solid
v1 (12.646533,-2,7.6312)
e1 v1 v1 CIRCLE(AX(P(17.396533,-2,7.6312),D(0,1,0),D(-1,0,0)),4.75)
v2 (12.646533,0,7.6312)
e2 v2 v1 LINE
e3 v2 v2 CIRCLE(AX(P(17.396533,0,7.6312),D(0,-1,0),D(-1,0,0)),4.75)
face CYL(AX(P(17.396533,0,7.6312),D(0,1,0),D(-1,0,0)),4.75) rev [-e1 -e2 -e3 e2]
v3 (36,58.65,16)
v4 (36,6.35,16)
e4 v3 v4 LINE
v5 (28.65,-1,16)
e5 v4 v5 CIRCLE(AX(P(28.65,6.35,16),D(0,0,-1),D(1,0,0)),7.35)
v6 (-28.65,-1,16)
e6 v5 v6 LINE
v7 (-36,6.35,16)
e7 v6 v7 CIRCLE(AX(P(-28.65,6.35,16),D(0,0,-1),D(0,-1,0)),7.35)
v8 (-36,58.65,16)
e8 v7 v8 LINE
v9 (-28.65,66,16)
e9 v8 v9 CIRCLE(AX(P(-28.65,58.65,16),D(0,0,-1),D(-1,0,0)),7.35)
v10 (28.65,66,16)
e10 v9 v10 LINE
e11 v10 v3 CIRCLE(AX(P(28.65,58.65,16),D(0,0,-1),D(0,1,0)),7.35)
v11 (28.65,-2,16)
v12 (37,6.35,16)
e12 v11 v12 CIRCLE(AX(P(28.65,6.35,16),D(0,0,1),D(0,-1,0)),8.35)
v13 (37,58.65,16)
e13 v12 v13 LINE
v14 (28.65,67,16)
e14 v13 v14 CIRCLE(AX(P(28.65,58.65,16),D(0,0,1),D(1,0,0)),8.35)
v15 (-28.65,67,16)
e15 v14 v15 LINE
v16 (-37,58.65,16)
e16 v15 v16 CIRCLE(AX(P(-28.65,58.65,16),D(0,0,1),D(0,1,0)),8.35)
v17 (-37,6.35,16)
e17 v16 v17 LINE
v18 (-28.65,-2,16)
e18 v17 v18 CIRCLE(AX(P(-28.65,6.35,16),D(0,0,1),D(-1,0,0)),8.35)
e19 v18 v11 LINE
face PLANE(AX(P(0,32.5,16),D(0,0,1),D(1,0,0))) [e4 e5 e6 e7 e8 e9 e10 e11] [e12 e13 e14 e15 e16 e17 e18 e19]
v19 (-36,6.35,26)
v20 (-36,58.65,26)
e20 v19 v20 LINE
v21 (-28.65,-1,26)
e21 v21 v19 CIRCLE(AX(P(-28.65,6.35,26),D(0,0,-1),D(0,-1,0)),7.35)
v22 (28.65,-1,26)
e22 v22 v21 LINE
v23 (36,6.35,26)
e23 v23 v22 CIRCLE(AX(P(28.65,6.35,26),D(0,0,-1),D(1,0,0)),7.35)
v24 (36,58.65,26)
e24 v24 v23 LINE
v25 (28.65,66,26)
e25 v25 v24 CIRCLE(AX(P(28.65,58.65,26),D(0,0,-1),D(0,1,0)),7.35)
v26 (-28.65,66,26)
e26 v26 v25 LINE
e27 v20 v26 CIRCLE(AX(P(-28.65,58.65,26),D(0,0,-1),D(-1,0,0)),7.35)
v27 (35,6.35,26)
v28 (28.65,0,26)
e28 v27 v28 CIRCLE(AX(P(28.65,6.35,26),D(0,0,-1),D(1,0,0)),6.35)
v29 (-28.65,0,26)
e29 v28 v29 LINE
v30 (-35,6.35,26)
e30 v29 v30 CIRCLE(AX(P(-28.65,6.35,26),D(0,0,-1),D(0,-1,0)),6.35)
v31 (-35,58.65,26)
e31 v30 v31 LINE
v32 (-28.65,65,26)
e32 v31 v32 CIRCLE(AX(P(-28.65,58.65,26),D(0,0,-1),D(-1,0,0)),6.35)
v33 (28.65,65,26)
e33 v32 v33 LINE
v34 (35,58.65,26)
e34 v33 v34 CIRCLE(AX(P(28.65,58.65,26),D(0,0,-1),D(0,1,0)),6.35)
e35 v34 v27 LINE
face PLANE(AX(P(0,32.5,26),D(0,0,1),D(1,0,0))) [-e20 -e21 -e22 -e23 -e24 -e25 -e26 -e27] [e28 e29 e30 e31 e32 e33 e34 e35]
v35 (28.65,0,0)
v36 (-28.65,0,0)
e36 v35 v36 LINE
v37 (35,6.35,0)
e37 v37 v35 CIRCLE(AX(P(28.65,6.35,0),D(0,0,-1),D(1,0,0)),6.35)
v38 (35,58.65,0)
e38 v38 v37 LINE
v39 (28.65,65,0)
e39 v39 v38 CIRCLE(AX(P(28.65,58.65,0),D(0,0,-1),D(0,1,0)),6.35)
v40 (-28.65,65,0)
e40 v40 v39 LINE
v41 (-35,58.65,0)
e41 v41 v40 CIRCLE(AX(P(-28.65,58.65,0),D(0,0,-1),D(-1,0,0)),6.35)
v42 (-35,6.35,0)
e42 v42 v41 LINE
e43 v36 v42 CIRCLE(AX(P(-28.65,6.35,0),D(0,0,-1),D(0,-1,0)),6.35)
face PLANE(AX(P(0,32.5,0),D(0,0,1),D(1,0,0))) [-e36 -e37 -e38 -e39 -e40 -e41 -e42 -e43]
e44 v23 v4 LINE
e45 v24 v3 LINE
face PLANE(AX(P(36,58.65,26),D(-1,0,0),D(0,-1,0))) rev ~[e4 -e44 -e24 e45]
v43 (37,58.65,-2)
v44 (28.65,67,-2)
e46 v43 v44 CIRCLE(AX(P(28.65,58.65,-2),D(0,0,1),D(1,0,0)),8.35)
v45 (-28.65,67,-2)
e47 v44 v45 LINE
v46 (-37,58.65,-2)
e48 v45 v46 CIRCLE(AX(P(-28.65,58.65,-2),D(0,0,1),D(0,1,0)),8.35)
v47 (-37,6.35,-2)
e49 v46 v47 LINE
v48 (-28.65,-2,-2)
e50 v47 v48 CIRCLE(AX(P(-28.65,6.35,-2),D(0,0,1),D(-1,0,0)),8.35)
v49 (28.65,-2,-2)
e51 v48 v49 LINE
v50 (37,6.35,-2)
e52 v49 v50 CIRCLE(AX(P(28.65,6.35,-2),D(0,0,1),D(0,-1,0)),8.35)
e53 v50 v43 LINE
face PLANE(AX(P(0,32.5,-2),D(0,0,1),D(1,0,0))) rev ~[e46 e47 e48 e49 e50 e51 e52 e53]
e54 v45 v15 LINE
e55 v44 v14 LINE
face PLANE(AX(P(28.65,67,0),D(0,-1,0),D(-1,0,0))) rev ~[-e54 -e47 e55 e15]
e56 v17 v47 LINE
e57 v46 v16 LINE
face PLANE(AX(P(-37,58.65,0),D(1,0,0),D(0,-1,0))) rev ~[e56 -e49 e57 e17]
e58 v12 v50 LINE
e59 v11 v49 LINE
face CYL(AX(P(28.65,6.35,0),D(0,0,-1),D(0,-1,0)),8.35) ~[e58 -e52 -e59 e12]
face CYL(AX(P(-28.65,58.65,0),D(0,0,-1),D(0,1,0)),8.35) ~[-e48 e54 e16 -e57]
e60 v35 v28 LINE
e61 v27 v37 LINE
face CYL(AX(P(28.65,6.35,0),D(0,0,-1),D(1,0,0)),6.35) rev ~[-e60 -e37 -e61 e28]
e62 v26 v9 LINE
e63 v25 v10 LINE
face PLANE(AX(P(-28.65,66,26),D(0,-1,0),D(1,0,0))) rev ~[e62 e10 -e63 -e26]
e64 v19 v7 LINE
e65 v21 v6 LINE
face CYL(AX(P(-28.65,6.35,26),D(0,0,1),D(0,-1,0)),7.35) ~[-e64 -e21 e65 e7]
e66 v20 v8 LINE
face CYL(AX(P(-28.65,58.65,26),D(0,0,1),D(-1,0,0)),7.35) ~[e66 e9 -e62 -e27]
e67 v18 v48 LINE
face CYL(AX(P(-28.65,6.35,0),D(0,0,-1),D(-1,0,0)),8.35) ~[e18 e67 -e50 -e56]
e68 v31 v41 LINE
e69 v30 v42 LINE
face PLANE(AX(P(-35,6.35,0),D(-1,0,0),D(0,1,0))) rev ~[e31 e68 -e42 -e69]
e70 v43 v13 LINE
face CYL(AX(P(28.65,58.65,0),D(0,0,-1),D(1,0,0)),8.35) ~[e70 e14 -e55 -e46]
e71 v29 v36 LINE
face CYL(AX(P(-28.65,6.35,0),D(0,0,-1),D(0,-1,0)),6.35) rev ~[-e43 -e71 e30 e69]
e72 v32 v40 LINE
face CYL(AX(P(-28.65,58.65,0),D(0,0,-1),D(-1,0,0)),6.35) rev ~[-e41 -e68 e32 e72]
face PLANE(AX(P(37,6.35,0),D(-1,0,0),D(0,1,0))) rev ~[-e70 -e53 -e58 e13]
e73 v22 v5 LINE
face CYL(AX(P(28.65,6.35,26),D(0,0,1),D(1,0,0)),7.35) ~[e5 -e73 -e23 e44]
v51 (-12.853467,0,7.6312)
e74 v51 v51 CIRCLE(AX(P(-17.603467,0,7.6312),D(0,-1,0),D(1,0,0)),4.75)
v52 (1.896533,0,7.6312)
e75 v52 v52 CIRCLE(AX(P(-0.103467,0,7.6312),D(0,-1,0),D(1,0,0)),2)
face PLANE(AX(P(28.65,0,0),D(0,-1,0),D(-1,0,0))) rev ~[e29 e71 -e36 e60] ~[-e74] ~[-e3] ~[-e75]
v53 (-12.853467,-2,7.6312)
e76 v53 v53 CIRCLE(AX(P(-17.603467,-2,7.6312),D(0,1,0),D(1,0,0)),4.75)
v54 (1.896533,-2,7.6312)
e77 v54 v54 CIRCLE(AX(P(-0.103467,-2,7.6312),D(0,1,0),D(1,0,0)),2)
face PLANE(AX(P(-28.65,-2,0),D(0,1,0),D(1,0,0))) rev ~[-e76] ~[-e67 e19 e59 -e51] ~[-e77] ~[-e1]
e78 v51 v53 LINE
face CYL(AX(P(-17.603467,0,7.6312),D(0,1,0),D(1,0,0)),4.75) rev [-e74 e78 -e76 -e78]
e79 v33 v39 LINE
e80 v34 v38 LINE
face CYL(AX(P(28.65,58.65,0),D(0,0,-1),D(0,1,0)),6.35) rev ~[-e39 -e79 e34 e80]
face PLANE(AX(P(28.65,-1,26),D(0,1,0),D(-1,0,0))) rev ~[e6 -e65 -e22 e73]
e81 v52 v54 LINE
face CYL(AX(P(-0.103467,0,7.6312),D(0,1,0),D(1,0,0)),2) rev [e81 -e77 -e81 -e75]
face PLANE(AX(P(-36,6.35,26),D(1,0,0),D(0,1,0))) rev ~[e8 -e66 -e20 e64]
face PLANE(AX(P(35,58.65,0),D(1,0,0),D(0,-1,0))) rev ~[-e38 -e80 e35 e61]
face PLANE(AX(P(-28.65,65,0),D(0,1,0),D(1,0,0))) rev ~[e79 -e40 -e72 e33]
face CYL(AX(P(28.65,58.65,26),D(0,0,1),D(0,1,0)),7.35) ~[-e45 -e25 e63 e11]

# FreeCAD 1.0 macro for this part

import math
import FreeCAD as App
import Part
import Sketcher
from FreeCAD import Vector
Q = App.Units.Quantity

doc = App.newDocument("Part")
body = doc.addObject("PartDesign::Body", "Body")

# Sketch on XY plane
sketch1 = doc.addObject("Sketcher::SketchObject", "Sketch")
body.addObject(sketch1)
sketch1.AttachmentSupport = (doc.XY_Plane, [""])
sketch1.MapMode = "FlatFace"
sketch1.addGeometry([
    Part.LineSegment(Vector(37, 6, 0), Vector(37, 59, 0)),  # 0
    Part.ArcOfCircle(Part.Circle(Vector(29, 59, 0), Vector(0, 0, 1), 8), math.radians(0), math.radians(90)),  # 1
    Part.LineSegment(Vector(29, 67, 0), Vector(-29, 67, 0)),  # 2
    Part.ArcOfCircle(Part.Circle(Vector(-29, 59, 0), Vector(0, 0, 1), 8), math.radians(90), math.radians(180)),  # 3
    Part.LineSegment(Vector(-37, 59, 0), Vector(-37, 6, 0)),  # 4
    Part.ArcOfCircle(Part.Circle(Vector(-29, 6, 0), Vector(0, 0, 1), 8), math.radians(180), math.radians(270)),  # 5
    Part.LineSegment(Vector(-29, -2, 0), Vector(29, -2, 0)),  # 6
    Part.ArcOfCircle(Part.Circle(Vector(29, 6, 0), Vector(0, 0, 1), 8), math.radians(-90), math.radians(0)),  # 7
], False)
sketch1.addConstraint([
    Sketcher.Constraint("Tangent", 0, 2, 1, 1),
    Sketcher.Constraint("Tangent", 1, 2, 2, 1),
    Sketcher.Constraint("Tangent", 2, 2, 3, 1),
    Sketcher.Constraint("Tangent", 3, 2, 4, 1),
    Sketcher.Constraint("Tangent", 4, 2, 5, 1),
    Sketcher.Constraint("Tangent", 5, 2, 6, 1),
    Sketcher.Constraint("Tangent", 6, 2, 7, 1),
    Sketcher.Constraint("Tangent", 7, 2, 0, 1),
    Sketcher.Constraint("Vertical", 0),
    Sketcher.Constraint("Horizontal", 2),
    Sketcher.Constraint("Vertical", 4),
    Sketcher.Constraint("Horizontal", 6),
    Sketcher.Constraint("Equal", 1, 3),
    Sketcher.Constraint("Equal", 3, 5),
    Sketcher.Constraint("Equal", 5, 7),
    Sketcher.Constraint("Radius", 1, Q("8.35 mm")),
    Sketcher.Constraint("DistanceX", 2, 2, 2, 1, Q("57.3 mm")),
    Sketcher.Constraint("DistanceY", 0, 1, 0, 2, Q("52.3 mm")),
    Sketcher.Constraint("DistanceX", -1, 1, 0, 2, Q("37 mm")),
    Sketcher.Constraint("DistanceY", -1, 1, 1, 2, Q("67 mm")),
])
pad1 = doc.addObject("PartDesign::Pad", "Pad")
body.addObject(pad1)
pad1.Profile = sketch1
pad1.Length = 2
pad1.Reversed = True

# Sketch on XY plane
sketch2 = doc.addObject("Sketcher::SketchObject", "Sketch001")
body.addObject(sketch2)
sketch2.AttachmentSupport = (doc.XY_Plane, [""])
sketch2.MapMode = "FlatFace"
sketch2.addGeometry([
    Part.LineSegment(Vector(37, 6, 0), Vector(37, 59, 0)),  # 0
    Part.ArcOfCircle(Part.Circle(Vector(29, 59, 0), Vector(0, 0, 1), 8), math.radians(0), math.radians(90)),  # 1
    Part.LineSegment(Vector(29, 67, 0), Vector(-29, 67, 0)),  # 2
    Part.ArcOfCircle(Part.Circle(Vector(-29, 59, 0), Vector(0, 0, 1), 8), math.radians(90), math.radians(180)),  # 3
    Part.LineSegment(Vector(-37, 59, 0), Vector(-37, 6, 0)),  # 4
    Part.ArcOfCircle(Part.Circle(Vector(-29, 6, 0), Vector(0, 0, 1), 8), math.radians(180), math.radians(270)),  # 5
    Part.LineSegment(Vector(-29, -2, 0), Vector(29, -2, 0)),  # 6
    Part.ArcOfCircle(Part.Circle(Vector(29, 6, 0), Vector(0, 0, 1), 8), math.radians(-90), math.radians(0)),  # 7
    Part.ArcOfCircle(Part.Circle(Vector(29, 6, 0), Vector(0, 0, 1), 6), math.radians(-90), math.radians(0)),  # 8
    Part.LineSegment(Vector(29, 0, 0), Vector(-29, 0, 0)),  # 9
    Part.ArcOfCircle(Part.Circle(Vector(-29, 6, 0), Vector(0, 0, 1), 6), math.radians(180), math.radians(270)),  # 10
    Part.LineSegment(Vector(-35, 6, 0), Vector(-35, 59, 0)),  # 11
    Part.ArcOfCircle(Part.Circle(Vector(-29, 59, 0), Vector(0, 0, 1), 6), math.radians(90), math.radians(180)),  # 12
    Part.LineSegment(Vector(-29, 65, 0), Vector(29, 65, 0)),  # 13
    Part.ArcOfCircle(Part.Circle(Vector(29, 59, 0), Vector(0, 0, 1), 6), math.radians(0), math.radians(90)),  # 14
    Part.LineSegment(Vector(35, 59, 0), Vector(35, 6, 0)),  # 15
], False)
sketch2.addConstraint([
    Sketcher.Constraint("Tangent", 0, 2, 1, 1),
    Sketcher.Constraint("Tangent", 1, 2, 2, 1),
    Sketcher.Constraint("Tangent", 2, 2, 3, 1),
    Sketcher.Constraint("Tangent", 3, 2, 4, 1),
    Sketcher.Constraint("Tangent", 4, 2, 5, 1),
    Sketcher.Constraint("Tangent", 5, 2, 6, 1),
    Sketcher.Constraint("Tangent", 6, 2, 7, 1),
    Sketcher.Constraint("Tangent", 7, 2, 0, 1),
    Sketcher.Constraint("Tangent", 8, 1, 9, 1),
    Sketcher.Constraint("Tangent", 9, 2, 10, 2),
    Sketcher.Constraint("Tangent", 10, 1, 11, 1),
    Sketcher.Constraint("Tangent", 11, 2, 12, 2),
    Sketcher.Constraint("Tangent", 12, 1, 13, 1),
    Sketcher.Constraint("Tangent", 13, 2, 14, 2),
    Sketcher.Constraint("Tangent", 14, 1, 15, 1),
    Sketcher.Constraint("Tangent", 15, 2, 8, 2),
    Sketcher.Constraint("Vertical", 0),
    Sketcher.Constraint("Horizontal", 2),
    Sketcher.Constraint("Vertical", 4),
    Sketcher.Constraint("Horizontal", 6),
    Sketcher.Constraint("Horizontal", 9),
    Sketcher.Constraint("Vertical", 11),
    Sketcher.Constraint("Horizontal", 13),
    Sketcher.Constraint("Vertical", 15),
    Sketcher.Constraint("Coincident", 8, 3, 7, 3),
    Sketcher.Constraint("Coincident", 10, 3, 5, 3),
    Sketcher.Constraint("Coincident", 12, 3, 3, 3),
    Sketcher.Constraint("Equal", 1, 3),
    Sketcher.Constraint("Equal", 3, 5),
    Sketcher.Constraint("Equal", 5, 7),
    Sketcher.Constraint("Equal", 12, 14),
    Sketcher.Constraint("Symmetric", 8, 1, 9, 2, -1, 1),
    Sketcher.Constraint("Radius", 1, Q("8.35 mm")),
    Sketcher.Constraint("Radius", 8, Q("6.35 mm")),
    Sketcher.Constraint("DistanceX", 2, 2, 2, 1, Q("57.3 mm")),
    Sketcher.Constraint("DistanceY", 0, 1, 0, 2, Q("52.3 mm")),
])
pad2 = doc.addObject("PartDesign::Pad", "Pad001")
body.addObject(pad2)
pad2.Profile = sketch2
pad2.Length = 26

# Sketch on XY plane
sketch3 = doc.addObject("Sketcher::SketchObject", "Sketch002")
body.addObject(sketch3)
sketch3.AttachmentSupport = (doc.XY_Plane, [""])
sketch3.MapMode = "FlatFace"
sketch3.addGeometry([
    Part.LineSegment(Vector(37, 6, 0), Vector(37, 59, 0)),  # 0
    Part.ArcOfCircle(Part.Circle(Vector(29, 59, 0), Vector(0, 0, 1), 8), math.radians(0), math.radians(90)),  # 1
    Part.LineSegment(Vector(29, 67, 0), Vector(-29, 67, 0)),  # 2
    Part.ArcOfCircle(Part.Circle(Vector(-29, 59, 0), Vector(0, 0, 1), 8), math.radians(90), math.radians(180)),  # 3
    Part.LineSegment(Vector(-37, 59, 0), Vector(-37, 6, 0)),  # 4
    Part.ArcOfCircle(Part.Circle(Vector(-29, 6, 0), Vector(0, 0, 1), 8), math.radians(180), math.radians(270)),  # 5
    Part.LineSegment(Vector(-29, -2, 0), Vector(29, -2, 0)),  # 6
    Part.ArcOfCircle(Part.Circle(Vector(29, 6, 0), Vector(0, 0, 1), 8), math.radians(-90), math.radians(0)),  # 7
    Part.ArcOfCircle(Part.Circle(Vector(29, 6, 0), Vector(0, 0, 1), 6), math.radians(-90), math.radians(0)),  # 8
    Part.LineSegment(Vector(29, 0, 0), Vector(-29, 0, 0)),  # 9
    Part.ArcOfCircle(Part.Circle(Vector(-29, 6, 0), Vector(0, 0, 1), 6), math.radians(180), math.radians(270)),  # 10
    Part.LineSegment(Vector(-35, 6, 0), Vector(-35, 59, 0)),  # 11
    Part.ArcOfCircle(Part.Circle(Vector(-29, 59, 0), Vector(0, 0, 1), 6), math.radians(90), math.radians(180)),  # 12
    Part.LineSegment(Vector(-29, 65, 0), Vector(29, 65, 0)),  # 13
    Part.ArcOfCircle(Part.Circle(Vector(29, 59, 0), Vector(0, 0, 1), 6), math.radians(0), math.radians(90)),  # 14
    Part.LineSegment(Vector(35, 59, 0), Vector(35, 6, 0)),  # 15
], False)
sketch3.addConstraint([
    Sketcher.Constraint("Tangent", 0, 2, 1, 1),
    Sketcher.Constraint("Tangent", 1, 2, 2, 1),
    Sketcher.Constraint("Tangent", 2, 2, 3, 1),
    Sketcher.Constraint("Tangent", 3, 2, 4, 1),
    Sketcher.Constraint("Tangent", 4, 2, 5, 1),
    Sketcher.Constraint("Tangent", 5, 2, 6, 1),
    Sketcher.Constraint("Tangent", 6, 2, 7, 1),
    Sketcher.Constraint("Tangent", 7, 2, 0, 1),
    Sketcher.Constraint("Tangent", 8, 1, 9, 1),
    Sketcher.Constraint("Tangent", 9, 2, 10, 2),
    Sketcher.Constraint("Tangent", 10, 1, 11, 1),
    Sketcher.Constraint("Tangent", 11, 2, 12, 2),
    Sketcher.Constraint("Tangent", 12, 1, 13, 1),
    Sketcher.Constraint("Tangent", 13, 2, 14, 2),
    Sketcher.Constraint("Tangent", 14, 1, 15, 1),
    Sketcher.Constraint("Tangent", 15, 2, 8, 2),
    Sketcher.Constraint("Vertical", 0),
    Sketcher.Constraint("Horizontal", 2),
    Sketcher.Constraint("Vertical", 4),
    Sketcher.Constraint("Horizontal", 6),
    Sketcher.Constraint("Horizontal", 9),
    Sketcher.Constraint("Vertical", 11),
    Sketcher.Constraint("Horizontal", 13),
    Sketcher.Constraint("Vertical", 15),
    Sketcher.Constraint("Coincident", 8, 3, 7, 3),
    Sketcher.Constraint("Coincident", 10, 3, 5, 3),
    Sketcher.Constraint("Coincident", 12, 3, 3, 3),
    Sketcher.Constraint("Equal", 1, 3),
    Sketcher.Constraint("Equal", 3, 5),
    Sketcher.Constraint("Equal", 5, 7),
    Sketcher.Constraint("Equal", 12, 14),
    Sketcher.Constraint("Symmetric", 8, 1, 9, 2, -1, 1),
    Sketcher.Constraint("Radius", 1, Q("8.35 mm")),
    Sketcher.Constraint("Radius", 8, Q("6.35 mm")),
    Sketcher.Constraint("DistanceX", 2, 2, 2, 1, Q("57.3 mm")),
    Sketcher.Constraint("DistanceY", 0, 1, 0, 2, Q("52.3 mm")),
])
pad3 = doc.addObject("PartDesign::Pad", "Pad002")
body.addObject(pad3)
pad3.Profile = sketch3
pad3.Length = 25.4

# Sketch on XY plane
sketch4 = doc.addObject("Sketcher::SketchObject", "Sketch003")
body.addObject(sketch4)
sketch4.AttachmentSupport = (doc.XY_Plane, [""])
sketch4.MapMode = "FlatFace"
sketch4.AttachmentOffset = App.Placement(Vector(0, 0, 26), App.Rotation())
sketch4.addGeometry([
    Part.LineSegment(Vector(37, 6, 0), Vector(37, 59, 0)),  # 0
    Part.ArcOfCircle(Part.Circle(Vector(29, 59, 0), Vector(0, 0, 1), 8), math.radians(0), math.radians(90)),  # 1
    Part.LineSegment(Vector(29, 67, 0), Vector(-29, 67, 0)),  # 2
    Part.ArcOfCircle(Part.Circle(Vector(-29, 59, 0), Vector(0, 0, 1), 8), math.radians(90), math.radians(180)),  # 3
    Part.LineSegment(Vector(-37, 59, 0), Vector(-37, 6, 0)),  # 4
    Part.ArcOfCircle(Part.Circle(Vector(-29, 6, 0), Vector(0, 0, 1), 8), math.radians(180), math.radians(270)),  # 5
    Part.LineSegment(Vector(-29, -2, 0), Vector(29, -2, 0)),  # 6
    Part.ArcOfCircle(Part.Circle(Vector(29, 6, 0), Vector(0, 0, 1), 8), math.radians(-90), math.radians(0)),  # 7
    Part.LineSegment(Vector(-29, 66, 0), Vector(29, 66, 0)),  # 8
    Part.ArcOfCircle(Part.Circle(Vector(29, 59, 0), Vector(0, 0, 1), 7), math.radians(0), math.radians(90)),  # 9
    Part.LineSegment(Vector(36, 59, 0), Vector(36, 6, 0)),  # 10
    Part.ArcOfCircle(Part.Circle(Vector(29, 6, 0), Vector(0, 0, 1), 7), math.radians(-90), math.radians(0)),  # 11
    Part.LineSegment(Vector(29, -1, 0), Vector(-29, -1, 0)),  # 12
    Part.ArcOfCircle(Part.Circle(Vector(-29, 6, 0), Vector(0, 0, 1), 7), math.radians(180), math.radians(270)),  # 13
    Part.LineSegment(Vector(-36, 6, 0), Vector(-36, 59, 0)),  # 14
    Part.ArcOfCircle(Part.Circle(Vector(-29, 59, 0), Vector(0, 0, 1), 7), math.radians(90), math.radians(180)),  # 15
], False)
sketch4.addConstraint([
    Sketcher.Constraint("Tangent", 0, 2, 1, 1),
    Sketcher.Constraint("Tangent", 1, 2, 2, 1),
    Sketcher.Constraint("Tangent", 2, 2, 3, 1),
    Sketcher.Constraint("Tangent", 3, 2, 4, 1),
    Sketcher.Constraint("Tangent", 4, 2, 5, 1),
    Sketcher.Constraint("Tangent", 5, 2, 6, 1),
    Sketcher.Constraint("Tangent", 6, 2, 7, 1),
    Sketcher.Constraint("Tangent", 7, 2, 0, 1),
    Sketcher.Constraint("Tangent", 8, 2, 9, 2),
    Sketcher.Constraint("Tangent", 9, 1, 10, 1),
    Sketcher.Constraint("Tangent", 10, 2, 11, 2),
    Sketcher.Constraint("Tangent", 11, 1, 12, 1),
    Sketcher.Constraint("Tangent", 12, 2, 13, 2),
    Sketcher.Constraint("Tangent", 13, 1, 14, 1),
    Sketcher.Constraint("Tangent", 14, 2, 15, 2),
    Sketcher.Constraint("Tangent", 15, 1, 8, 1),
    Sketcher.Constraint("Vertical", 0),
    Sketcher.Constraint("Horizontal", 2),
    Sketcher.Constraint("Vertical", 4),
    Sketcher.Constraint("Horizontal", 6),
    Sketcher.Constraint("Horizontal", 8),
    Sketcher.Constraint("Vertical", 10),
    Sketcher.Constraint("Horizontal", 12),
    Sketcher.Constraint("Vertical", 14),
    Sketcher.Constraint("Coincident", 9, 3, 1, 3),
    Sketcher.Constraint("Coincident", 11, 3, 7, 3),
    Sketcher.Constraint("Coincident", 13, 3, 5, 3),
    Sketcher.Constraint("Equal", 1, 3),
    Sketcher.Constraint("Equal", 3, 5),
    Sketcher.Constraint("Equal", 5, 7),
    Sketcher.Constraint("Equal", 13, 15),
    Sketcher.Constraint("Radius", 1, Q("8.35 mm")),
    Sketcher.Constraint("Radius", 9, Q("7.35 mm")),
    Sketcher.Constraint("DistanceX", 2, 2, 2, 1, Q("57.3 mm")),
    Sketcher.Constraint("DistanceY", 0, 1, 0, 2, Q("52.3 mm")),
    Sketcher.Constraint("DistanceX", -1, 1, 0, 2, Q("37 mm")),
    Sketcher.Constraint("DistanceY", -1, 1, 1, 2, Q("67 mm")),
])
pocket1 = doc.addObject("PartDesign::Pocket", "Pocket")
body.addObject(pocket1)
pocket1.Profile = sketch4
pocket1.Length = 10

# Sketch on XZ plane
sketch5 = doc.addObject("Sketcher::SketchObject", "Sketch004")
body.addObject(sketch5)
sketch5.AttachmentSupport = (doc.XZ_Plane, [""])
sketch5.MapMode = "FlatFace"
sketch5.addGeometry([
    Part.Circle(Vector(-0.1, 7.6, 0), Vector(0, 0, 1), 2),
    Part.Circle(Vector(-17.6, 7.6, 0), Vector(0, 0, 1), 4.8),
    Part.Circle(Vector(17.4, 7.6, 0), Vector(0, 0, 1), 4.8),
], False)
sketch5.addConstraint([
    Sketcher.Constraint("Equal", 1, 2),
    Sketcher.Constraint("Horizontal", 0, 3, 1, 3),
    Sketcher.Constraint("Horizontal", 1, 3, 2, 3),
    Sketcher.Constraint("Diameter", 0, Q("4 mm")),
    Sketcher.Constraint("Diameter", 1, Q("9.5 mm")),
    Sketcher.Constraint("DistanceX", 1, 3, 2, 3, Q("35 mm")),
    Sketcher.Constraint("DistanceX", 1, 3, 0, 3, Q("17.5 mm")),
    Sketcher.Constraint("DistanceY", -1, 1, 0, 3, Q("7.6312 mm")),
    Sketcher.Constraint("DistanceX", 0, 3, -1, 1, Q("0.103467 mm")),
])
pocket2 = doc.addObject("PartDesign::Pocket", "Pocket001")
body.addObject(pocket2)
pocket2.Profile = sketch5
pocket2.Length = 25.4
pocket2.Reversed = True

doc.recompute()
